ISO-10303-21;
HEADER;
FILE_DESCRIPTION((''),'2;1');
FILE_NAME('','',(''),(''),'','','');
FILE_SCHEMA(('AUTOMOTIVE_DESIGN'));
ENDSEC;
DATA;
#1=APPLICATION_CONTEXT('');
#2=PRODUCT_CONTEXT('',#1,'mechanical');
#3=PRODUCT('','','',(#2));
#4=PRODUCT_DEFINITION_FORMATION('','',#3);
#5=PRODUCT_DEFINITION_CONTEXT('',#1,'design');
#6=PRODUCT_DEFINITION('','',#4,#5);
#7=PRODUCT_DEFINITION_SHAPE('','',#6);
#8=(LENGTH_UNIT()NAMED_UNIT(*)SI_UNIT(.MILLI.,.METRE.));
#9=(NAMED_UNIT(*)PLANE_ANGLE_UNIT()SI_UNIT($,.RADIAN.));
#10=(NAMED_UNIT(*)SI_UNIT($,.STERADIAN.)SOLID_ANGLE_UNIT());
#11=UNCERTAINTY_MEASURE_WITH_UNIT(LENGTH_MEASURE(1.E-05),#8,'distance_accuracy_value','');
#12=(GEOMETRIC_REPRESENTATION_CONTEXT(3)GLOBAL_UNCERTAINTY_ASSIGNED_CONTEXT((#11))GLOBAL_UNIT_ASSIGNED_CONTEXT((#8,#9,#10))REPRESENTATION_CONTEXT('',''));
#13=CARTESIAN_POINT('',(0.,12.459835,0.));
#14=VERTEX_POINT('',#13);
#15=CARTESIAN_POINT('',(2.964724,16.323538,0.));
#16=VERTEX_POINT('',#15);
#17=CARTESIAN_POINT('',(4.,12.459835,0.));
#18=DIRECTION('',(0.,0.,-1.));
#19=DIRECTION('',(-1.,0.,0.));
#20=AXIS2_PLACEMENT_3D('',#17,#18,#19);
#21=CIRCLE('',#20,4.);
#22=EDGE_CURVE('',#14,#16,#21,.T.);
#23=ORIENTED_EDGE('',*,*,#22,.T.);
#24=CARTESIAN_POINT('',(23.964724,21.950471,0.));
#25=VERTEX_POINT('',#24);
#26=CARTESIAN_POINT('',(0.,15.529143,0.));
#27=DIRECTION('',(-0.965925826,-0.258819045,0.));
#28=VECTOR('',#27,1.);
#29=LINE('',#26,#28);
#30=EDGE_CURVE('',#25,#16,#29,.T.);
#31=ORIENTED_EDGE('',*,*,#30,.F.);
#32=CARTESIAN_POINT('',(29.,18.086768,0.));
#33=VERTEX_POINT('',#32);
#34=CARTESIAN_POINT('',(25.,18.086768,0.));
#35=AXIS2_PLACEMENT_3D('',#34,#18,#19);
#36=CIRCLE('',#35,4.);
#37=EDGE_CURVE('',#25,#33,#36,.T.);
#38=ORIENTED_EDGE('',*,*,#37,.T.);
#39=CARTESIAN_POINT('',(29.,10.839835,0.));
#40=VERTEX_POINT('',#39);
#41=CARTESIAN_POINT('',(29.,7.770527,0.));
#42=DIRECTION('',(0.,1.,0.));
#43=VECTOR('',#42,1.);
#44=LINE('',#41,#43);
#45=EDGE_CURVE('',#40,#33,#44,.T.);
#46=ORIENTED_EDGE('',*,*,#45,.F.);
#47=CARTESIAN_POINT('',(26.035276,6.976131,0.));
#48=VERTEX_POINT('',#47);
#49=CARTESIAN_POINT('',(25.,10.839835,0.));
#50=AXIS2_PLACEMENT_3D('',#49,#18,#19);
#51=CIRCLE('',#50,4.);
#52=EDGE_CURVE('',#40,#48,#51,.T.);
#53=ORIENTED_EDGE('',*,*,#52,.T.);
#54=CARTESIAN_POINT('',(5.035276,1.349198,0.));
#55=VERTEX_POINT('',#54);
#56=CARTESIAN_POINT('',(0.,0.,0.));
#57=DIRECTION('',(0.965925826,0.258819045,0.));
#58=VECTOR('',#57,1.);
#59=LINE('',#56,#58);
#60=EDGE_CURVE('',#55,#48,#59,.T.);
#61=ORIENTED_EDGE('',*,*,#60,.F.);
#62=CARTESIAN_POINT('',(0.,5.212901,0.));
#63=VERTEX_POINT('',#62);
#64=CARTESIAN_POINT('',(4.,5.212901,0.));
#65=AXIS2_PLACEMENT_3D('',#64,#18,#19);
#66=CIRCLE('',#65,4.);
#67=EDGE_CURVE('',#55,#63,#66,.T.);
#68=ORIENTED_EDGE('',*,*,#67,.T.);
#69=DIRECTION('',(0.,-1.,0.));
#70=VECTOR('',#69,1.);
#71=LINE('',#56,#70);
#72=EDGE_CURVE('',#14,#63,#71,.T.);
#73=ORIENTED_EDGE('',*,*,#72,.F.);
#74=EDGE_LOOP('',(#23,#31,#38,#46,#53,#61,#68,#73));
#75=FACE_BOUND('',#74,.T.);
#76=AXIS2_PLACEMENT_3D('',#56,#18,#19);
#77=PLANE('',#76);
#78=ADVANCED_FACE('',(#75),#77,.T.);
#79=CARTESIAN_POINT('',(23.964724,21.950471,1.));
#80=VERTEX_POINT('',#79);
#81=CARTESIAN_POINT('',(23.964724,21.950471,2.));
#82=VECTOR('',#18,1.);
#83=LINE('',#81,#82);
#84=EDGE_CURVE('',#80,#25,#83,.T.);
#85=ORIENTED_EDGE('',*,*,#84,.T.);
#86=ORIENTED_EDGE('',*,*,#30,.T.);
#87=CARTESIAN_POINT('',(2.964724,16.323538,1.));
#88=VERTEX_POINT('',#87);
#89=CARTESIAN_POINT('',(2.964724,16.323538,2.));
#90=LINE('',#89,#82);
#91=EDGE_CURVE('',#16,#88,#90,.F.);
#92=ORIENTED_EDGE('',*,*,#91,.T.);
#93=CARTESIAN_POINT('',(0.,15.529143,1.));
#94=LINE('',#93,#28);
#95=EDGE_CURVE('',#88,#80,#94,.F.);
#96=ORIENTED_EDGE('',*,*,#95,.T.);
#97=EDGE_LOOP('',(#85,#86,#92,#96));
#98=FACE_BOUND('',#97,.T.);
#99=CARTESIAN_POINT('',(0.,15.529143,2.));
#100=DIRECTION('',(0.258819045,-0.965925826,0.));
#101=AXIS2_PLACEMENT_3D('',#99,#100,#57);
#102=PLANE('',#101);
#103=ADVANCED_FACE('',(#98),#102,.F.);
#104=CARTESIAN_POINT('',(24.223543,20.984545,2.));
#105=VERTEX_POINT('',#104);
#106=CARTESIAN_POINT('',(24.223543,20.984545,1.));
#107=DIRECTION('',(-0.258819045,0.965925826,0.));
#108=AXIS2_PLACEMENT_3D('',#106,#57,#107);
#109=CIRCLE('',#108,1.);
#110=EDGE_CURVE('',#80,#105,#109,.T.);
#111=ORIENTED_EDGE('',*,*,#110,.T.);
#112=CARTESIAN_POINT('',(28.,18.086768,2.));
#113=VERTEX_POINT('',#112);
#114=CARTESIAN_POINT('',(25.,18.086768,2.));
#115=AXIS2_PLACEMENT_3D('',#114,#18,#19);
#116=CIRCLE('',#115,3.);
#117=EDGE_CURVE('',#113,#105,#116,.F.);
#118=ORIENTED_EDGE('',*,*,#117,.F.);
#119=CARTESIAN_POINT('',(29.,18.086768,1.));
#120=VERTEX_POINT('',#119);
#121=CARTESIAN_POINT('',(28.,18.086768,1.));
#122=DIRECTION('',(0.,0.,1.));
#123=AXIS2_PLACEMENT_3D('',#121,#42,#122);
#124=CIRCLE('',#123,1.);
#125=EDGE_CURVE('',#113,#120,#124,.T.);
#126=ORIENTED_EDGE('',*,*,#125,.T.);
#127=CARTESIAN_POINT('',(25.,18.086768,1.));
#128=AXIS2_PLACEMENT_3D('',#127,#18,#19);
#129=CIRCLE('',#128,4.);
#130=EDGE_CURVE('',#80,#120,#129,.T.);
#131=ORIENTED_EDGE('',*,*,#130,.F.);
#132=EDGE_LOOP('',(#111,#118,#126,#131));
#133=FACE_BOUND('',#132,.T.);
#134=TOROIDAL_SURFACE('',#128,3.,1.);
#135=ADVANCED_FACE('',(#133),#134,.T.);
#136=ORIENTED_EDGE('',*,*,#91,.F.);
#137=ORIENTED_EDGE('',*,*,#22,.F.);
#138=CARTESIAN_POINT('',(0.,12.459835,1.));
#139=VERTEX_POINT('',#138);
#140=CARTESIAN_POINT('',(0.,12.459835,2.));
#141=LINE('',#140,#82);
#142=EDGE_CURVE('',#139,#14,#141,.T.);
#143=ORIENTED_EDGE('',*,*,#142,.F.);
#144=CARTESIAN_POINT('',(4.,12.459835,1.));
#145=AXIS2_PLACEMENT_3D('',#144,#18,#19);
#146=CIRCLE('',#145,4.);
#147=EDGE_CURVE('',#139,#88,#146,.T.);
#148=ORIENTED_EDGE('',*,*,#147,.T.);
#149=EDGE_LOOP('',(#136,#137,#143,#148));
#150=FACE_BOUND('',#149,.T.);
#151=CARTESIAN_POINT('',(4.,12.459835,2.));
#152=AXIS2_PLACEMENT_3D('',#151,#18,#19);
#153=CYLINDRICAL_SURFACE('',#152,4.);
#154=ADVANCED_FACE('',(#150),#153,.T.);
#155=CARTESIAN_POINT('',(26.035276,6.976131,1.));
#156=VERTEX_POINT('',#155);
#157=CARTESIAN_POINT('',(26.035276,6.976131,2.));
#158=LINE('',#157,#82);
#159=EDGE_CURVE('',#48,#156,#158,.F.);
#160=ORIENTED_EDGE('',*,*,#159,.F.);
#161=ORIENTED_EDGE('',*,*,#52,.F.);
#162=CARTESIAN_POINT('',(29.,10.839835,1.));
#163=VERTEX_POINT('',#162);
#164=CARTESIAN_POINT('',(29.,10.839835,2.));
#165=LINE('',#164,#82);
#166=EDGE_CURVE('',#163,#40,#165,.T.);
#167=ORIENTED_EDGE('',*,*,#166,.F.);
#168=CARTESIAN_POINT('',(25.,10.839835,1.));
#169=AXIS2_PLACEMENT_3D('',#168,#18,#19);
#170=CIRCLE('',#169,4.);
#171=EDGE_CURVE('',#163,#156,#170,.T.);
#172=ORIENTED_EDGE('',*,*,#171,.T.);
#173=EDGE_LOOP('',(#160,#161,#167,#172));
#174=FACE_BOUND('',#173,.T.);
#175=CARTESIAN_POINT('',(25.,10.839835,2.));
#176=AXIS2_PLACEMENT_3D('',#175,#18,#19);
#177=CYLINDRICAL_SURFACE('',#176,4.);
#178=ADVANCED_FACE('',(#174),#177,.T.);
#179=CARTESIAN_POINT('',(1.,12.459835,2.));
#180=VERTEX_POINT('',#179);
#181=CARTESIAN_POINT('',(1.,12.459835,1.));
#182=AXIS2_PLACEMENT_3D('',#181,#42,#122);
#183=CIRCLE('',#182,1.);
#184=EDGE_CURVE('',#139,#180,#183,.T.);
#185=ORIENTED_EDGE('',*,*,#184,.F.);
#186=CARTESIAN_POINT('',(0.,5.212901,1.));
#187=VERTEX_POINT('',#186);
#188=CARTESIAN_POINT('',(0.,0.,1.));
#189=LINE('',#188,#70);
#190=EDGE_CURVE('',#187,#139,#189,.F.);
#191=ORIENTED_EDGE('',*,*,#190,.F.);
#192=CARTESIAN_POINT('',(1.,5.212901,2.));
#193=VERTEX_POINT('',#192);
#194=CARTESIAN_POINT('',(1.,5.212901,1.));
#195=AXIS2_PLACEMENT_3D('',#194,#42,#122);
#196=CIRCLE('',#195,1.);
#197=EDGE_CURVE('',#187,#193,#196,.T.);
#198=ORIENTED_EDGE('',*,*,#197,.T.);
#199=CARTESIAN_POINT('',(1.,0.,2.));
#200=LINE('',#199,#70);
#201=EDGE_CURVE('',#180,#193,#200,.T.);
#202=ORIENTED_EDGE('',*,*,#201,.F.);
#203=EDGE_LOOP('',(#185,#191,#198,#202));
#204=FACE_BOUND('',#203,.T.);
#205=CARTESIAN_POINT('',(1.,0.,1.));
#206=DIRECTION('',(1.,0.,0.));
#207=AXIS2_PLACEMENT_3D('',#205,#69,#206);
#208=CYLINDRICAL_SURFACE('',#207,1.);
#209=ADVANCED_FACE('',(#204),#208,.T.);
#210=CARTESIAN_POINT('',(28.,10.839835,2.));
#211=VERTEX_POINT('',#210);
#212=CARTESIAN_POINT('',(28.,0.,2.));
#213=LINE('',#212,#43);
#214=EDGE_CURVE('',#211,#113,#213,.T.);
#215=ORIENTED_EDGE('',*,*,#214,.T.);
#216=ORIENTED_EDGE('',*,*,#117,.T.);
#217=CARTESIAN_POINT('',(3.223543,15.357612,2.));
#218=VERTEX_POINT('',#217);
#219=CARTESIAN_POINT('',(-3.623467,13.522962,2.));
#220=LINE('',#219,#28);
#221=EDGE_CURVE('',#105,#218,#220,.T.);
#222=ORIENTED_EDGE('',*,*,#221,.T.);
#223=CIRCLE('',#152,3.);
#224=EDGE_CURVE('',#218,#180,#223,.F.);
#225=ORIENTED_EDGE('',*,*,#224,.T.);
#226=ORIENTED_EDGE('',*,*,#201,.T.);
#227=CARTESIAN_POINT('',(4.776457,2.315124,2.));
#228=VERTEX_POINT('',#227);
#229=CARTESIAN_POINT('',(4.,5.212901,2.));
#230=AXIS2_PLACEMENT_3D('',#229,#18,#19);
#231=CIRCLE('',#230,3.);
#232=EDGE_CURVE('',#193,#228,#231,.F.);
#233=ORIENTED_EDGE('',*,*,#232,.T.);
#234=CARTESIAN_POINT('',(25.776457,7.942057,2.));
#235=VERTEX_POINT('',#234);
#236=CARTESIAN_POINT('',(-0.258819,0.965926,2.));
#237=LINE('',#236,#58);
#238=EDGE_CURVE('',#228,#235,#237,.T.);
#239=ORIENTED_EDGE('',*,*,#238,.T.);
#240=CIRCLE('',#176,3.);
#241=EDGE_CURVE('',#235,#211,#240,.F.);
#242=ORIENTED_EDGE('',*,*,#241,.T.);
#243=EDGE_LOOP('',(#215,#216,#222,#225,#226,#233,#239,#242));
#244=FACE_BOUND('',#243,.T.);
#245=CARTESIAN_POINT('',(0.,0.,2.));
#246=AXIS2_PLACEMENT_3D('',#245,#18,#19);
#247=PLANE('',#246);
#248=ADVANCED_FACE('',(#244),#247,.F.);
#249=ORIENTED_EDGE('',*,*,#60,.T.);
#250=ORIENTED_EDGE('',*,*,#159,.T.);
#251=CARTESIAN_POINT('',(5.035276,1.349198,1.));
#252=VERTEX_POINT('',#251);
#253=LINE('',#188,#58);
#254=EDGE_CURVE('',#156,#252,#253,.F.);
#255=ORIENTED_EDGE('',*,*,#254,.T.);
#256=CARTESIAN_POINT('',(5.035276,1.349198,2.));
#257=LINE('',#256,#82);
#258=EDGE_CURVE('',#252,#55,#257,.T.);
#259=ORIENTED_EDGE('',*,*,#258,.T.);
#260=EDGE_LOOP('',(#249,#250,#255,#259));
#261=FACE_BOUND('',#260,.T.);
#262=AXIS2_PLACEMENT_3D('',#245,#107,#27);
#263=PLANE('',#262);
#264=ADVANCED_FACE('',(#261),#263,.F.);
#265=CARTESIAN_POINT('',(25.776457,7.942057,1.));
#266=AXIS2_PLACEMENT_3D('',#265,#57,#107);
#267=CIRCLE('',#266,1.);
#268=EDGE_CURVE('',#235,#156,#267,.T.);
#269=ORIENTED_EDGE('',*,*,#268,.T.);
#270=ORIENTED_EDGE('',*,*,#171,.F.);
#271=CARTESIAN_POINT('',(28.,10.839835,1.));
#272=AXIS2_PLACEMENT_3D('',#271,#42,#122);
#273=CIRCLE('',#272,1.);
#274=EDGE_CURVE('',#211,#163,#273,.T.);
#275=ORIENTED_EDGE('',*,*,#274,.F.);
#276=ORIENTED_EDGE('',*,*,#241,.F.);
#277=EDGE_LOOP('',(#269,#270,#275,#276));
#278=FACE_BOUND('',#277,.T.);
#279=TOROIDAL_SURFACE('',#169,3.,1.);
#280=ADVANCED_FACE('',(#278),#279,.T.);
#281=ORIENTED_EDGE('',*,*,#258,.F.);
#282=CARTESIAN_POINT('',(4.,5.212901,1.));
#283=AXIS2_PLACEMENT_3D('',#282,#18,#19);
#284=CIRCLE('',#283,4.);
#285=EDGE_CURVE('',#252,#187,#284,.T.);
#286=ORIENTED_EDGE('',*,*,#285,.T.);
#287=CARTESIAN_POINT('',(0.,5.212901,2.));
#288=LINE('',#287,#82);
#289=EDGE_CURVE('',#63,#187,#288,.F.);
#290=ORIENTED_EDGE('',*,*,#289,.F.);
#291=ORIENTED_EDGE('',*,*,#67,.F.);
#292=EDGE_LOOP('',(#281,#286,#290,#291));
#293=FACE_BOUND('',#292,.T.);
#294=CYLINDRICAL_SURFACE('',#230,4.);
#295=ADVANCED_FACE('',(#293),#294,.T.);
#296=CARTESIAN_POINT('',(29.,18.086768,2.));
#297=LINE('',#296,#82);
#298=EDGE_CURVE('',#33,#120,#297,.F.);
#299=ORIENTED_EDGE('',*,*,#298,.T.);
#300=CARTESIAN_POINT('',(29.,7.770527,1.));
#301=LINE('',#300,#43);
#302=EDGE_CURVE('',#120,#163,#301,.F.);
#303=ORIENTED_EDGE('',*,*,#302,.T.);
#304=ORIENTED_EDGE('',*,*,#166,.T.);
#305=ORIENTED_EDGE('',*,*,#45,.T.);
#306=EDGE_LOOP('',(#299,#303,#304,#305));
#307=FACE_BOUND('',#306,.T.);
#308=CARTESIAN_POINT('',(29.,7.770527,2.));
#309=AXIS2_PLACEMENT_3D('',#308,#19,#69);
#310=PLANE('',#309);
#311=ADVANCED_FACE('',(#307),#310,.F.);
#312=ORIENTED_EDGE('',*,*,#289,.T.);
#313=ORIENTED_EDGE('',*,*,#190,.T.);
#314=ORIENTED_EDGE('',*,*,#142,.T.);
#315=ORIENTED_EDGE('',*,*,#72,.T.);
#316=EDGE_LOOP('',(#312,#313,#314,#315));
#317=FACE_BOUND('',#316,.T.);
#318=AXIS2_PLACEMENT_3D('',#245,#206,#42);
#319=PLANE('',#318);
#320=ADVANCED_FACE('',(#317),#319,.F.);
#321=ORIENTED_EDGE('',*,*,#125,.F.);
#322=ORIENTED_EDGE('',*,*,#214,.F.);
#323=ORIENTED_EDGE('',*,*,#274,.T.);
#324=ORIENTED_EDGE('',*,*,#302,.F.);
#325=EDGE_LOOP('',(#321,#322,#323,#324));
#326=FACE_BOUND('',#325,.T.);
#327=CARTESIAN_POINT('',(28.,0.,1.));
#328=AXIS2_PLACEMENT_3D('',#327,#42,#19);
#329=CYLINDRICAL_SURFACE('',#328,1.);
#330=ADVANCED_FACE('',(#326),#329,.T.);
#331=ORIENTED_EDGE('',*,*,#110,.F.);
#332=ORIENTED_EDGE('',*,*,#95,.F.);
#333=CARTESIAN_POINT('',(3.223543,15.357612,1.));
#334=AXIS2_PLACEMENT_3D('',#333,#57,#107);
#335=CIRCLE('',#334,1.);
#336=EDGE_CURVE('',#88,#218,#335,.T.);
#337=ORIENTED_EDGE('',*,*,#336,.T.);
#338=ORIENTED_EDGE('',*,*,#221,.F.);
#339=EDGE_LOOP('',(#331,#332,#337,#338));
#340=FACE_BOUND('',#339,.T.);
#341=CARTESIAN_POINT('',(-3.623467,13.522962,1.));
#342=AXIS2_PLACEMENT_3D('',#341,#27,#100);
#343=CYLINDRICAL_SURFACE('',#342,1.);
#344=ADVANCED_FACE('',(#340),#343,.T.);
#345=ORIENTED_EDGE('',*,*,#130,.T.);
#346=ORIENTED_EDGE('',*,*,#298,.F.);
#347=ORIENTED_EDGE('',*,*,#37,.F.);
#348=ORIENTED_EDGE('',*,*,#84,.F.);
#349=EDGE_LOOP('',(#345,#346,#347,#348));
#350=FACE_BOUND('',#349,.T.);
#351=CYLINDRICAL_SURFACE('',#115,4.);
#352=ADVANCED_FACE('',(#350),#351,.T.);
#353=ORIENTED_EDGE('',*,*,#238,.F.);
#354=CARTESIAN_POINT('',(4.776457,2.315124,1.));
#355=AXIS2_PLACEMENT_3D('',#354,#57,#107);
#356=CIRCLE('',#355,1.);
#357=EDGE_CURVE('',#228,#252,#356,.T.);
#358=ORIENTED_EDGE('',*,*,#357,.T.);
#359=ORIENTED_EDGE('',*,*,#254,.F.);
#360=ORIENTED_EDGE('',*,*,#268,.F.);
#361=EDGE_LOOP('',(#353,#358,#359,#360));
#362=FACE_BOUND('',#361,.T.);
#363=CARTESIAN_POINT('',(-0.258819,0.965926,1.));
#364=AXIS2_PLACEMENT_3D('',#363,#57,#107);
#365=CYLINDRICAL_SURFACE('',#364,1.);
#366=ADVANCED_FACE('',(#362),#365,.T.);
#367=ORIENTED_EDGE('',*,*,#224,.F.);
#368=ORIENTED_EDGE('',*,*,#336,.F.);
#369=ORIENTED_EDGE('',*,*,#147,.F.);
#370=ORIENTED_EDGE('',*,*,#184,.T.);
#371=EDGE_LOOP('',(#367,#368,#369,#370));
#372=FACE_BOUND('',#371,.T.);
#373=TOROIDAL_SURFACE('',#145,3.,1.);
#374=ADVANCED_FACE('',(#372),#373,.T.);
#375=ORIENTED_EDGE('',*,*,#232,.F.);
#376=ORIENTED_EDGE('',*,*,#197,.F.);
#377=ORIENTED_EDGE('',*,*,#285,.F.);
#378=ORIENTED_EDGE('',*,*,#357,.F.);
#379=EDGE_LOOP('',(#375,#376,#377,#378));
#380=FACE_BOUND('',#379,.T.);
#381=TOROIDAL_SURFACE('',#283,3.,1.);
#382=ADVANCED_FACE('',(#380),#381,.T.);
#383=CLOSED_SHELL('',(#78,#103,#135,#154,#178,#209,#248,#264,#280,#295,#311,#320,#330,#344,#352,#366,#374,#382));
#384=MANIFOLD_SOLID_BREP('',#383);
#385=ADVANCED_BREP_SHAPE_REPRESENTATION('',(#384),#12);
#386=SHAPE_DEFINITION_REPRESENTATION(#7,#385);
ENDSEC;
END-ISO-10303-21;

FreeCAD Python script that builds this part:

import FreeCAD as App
import Part
import Sketcher
from FreeCAD import Vector
Q = App.Units.Quantity


def edges_at(feature, points):
    """Names of the edges that pass closest to the given points."""
    edges = feature.Shape.Edges
    near = lambda p: min(range(len(edges)), key=lambda i: edges[i].distToShape(Part.Vertex(*p))[0])
    return sorted({f"Edge{near(p) + 1}" for p in points})

doc = App.newDocument("Part")
params = doc.addObject("Spreadsheet::Sheet", "Params")
for row, (alias, value) in enumerate([
    ("pad1_length", "2 mm"),
    ("fillet_radius", "4 mm"),
    ("fillet2_radius", "1 mm"),
], start=1):
    params.set(f"A{row}", alias)
    params.set(f"B{row}", "=" + value)
    params.setAlias(f"B{row}", alias)

body = doc.addObject("PartDesign::Body", "Body")

sketch1 = body.newObject("Sketcher::SketchObject", "Sketch")
sketch1.AttachmentSupport = (doc.getObject("XY_Plane"), [""])
sketch1.MapMode = "FlatFace"
sketch1.addGeometry([
    Part.LineSegment(Vector(0, 0, 0), Vector(29, 8, 0)),
    Part.LineSegment(Vector(29, 8, 0), Vector(29, 23, 0)),
    Part.LineSegment(Vector(29, 23, 0), Vector(0, 16, 0)),
    Part.LineSegment(Vector(0, 16, 0), Vector(0, 0, 0)),
], False)
sketch1.addConstraint([
    Sketcher.Constraint("Coincident", 0, 2, 1, 1),
    Sketcher.Constraint("Coincident", 1, 2, 2, 1),
    Sketcher.Constraint("Coincident", 2, 2, 3, 1),
    Sketcher.Constraint("Coincident", 3, 2, 0, 1),
    Sketcher.Constraint("Vertical", 1),
    Sketcher.Constraint("Vertical", 3),
    Sketcher.Constraint("Coincident", 3, 2, -1, 1),
    Sketcher.Constraint("Parallel", 0, 2),
    Sketcher.Constraint("Angle", 0, Q("15 deg")),
    Sketcher.Constraint("DistanceX", -1, 1, 0, 2, Q("29 mm")),
    Sketcher.Constraint("DistanceY", 1, 1, 1, 2, Q("15.529143 mm")),
])
pad1 = body.newObject("PartDesign::Pad", "Pad")
pad1.Profile = sketch1
pad1.setExpression("Length", "Params.pad1_length")
doc.recompute()

fillet = body.newObject("PartDesign::Fillet", "Fillet")
fillet.Base = (pad1, edges_at(pad1, [
    (0, 15.529, 1),
    (29, 23.3, 1),
    (29, 7.771, 1),
    (0, 0, 1),
]))
fillet.setExpression("Radius", "Params.fillet_radius")
doc.recompute()

fillet2 = body.newObject("PartDesign::Fillet", "Fillet001")
fillet2.Base = (fillet, edges_at(fillet, [
    (0, 8.836, 2),
    (13.465, 19.137, 2),
    (15.535, 4.163, 2),
    (29, 14.463, 2),
    (27.435, 21.26, 2),
    (28.173, 8.405, 2),
    (1.565, 2.039, 2),
    (0.827, 14.895, 2),
]))
fillet2.setExpression("Radius", "Params.fillet2_radius")

doc.recompute()
